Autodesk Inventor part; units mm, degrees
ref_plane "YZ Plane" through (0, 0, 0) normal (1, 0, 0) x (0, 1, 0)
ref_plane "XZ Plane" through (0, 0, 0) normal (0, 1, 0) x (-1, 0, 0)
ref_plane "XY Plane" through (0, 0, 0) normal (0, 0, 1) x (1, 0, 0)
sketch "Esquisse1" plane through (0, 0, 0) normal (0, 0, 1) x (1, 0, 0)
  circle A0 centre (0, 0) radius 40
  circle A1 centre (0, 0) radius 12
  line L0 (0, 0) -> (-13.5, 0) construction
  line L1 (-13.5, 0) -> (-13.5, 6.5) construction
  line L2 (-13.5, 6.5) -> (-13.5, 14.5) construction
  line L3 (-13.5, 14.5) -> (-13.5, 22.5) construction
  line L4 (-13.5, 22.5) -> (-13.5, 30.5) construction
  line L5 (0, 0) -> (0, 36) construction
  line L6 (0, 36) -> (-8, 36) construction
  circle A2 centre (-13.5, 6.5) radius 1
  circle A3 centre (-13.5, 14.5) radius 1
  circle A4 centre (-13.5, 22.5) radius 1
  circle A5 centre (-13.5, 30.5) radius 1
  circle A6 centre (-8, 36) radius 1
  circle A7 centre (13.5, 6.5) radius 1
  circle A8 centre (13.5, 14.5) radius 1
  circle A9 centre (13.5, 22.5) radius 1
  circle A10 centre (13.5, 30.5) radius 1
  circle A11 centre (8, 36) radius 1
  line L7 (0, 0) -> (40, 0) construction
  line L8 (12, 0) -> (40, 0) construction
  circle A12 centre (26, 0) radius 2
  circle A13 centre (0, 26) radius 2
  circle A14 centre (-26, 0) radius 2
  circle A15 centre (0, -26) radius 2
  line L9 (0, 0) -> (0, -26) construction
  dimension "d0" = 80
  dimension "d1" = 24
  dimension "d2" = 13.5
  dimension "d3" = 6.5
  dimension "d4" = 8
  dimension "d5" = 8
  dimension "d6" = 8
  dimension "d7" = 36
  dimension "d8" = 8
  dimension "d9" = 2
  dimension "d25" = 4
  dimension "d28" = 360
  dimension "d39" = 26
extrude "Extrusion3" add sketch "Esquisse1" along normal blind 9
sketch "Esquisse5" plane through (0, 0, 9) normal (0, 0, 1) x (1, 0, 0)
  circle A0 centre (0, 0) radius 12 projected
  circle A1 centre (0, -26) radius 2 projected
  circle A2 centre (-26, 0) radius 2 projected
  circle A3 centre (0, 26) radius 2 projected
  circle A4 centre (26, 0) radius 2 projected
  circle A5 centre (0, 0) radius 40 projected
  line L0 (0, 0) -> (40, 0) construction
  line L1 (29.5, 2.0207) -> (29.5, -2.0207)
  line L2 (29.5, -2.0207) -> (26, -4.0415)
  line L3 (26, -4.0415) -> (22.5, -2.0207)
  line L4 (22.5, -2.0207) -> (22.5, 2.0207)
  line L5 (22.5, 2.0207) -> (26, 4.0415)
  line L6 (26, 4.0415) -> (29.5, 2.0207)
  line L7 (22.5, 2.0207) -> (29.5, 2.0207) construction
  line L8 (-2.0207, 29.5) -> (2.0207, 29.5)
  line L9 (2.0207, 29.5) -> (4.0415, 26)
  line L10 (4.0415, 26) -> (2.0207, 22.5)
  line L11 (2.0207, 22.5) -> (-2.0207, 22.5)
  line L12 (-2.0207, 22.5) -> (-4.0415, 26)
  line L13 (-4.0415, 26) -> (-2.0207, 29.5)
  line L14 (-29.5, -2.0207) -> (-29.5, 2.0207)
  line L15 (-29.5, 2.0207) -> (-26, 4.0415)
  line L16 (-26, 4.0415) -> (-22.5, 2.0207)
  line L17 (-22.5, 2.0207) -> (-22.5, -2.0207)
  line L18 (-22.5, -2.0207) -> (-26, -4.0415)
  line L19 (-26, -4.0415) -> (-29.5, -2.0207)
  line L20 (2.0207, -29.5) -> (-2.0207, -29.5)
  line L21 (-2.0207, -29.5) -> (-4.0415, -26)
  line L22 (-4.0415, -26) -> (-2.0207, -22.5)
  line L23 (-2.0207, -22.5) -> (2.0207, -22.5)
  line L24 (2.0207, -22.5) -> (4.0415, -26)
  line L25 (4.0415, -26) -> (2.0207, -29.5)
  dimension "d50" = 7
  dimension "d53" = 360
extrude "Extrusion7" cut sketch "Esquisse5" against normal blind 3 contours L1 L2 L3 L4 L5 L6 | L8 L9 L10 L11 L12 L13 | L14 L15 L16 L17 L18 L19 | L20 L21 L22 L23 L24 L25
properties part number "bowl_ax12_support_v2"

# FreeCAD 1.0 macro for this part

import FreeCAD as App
import Part
import Sketcher

V = App.Vector
Q = App.Units.Quantity


def add_polygon(sketch, points):
    """Adds a closed chain of lines whose ends are joined by coincident constraints."""
    first, n = sketch.GeometryCount, len(points)
    for a, b in zip(points, points[1:] + points[:1]):
        sketch.addGeometry(Part.LineSegment(App.Vector(*a, 0), App.Vector(*b, 0)), False)
    for i in range(n):
        sketch.addConstraint(Sketcher.Constraint("Coincident", first + i, 2, first + (i + 1) % n, 1))

doc = App.newDocument("Part")
body = doc.addObject("PartDesign::Body", "Body")

# Sketch on XY plane
sketch1 = doc.addObject("Sketcher::SketchObject", "Sketch")
body.addObject(sketch1)
sketch1.AttachmentSupport = (doc.XY_Plane, [""])
sketch1.MapMode = "FlatFace"
sketch1.addGeometry([
    Part.Circle(V(0, 0, 0), V(0, 0, 1), 40),  # 0
    Part.Circle(V(0, -26, 0), V(0, 0, 1), 2),  # 1
    Part.Circle(V(-26, 0, 0), V(0, 0, 1), 2),  # 2
    Part.Circle(V(-13.5, 6.5, 0), V(0, 0, 1), 1),  # 3
    Part.Circle(V(-13.5, 14.5, 0), V(0, 0, 1), 1),  # 4
    Part.Circle(V(-13.5, 22.5, 0), V(0, 0, 1), 1),  # 5
    Part.Circle(V(-13.5, 30.5, 0), V(0, 0, 1), 1),  # 6
    Part.Circle(V(-8, 36, 0), V(0, 0, 1), 1),  # 7
    Part.Circle(V(0, 0, 0), V(0, 0, 1), 12),  # 8
    Part.Circle(V(13.5, 6.5, 0), V(0, 0, 1), 1),  # 9
    Part.Circle(V(13.5, 14.5, 0), V(0, 0, 1), 1),  # 10
    Part.Circle(V(26, 0, 0), V(0, 0, 1), 2),  # 11
    Part.Circle(V(0, 26, 0), V(0, 0, 1), 2),  # 12
    Part.Circle(V(13.5, 22.5, 0), V(0, 0, 1), 1),  # 13
    Part.Circle(V(8, 36, 0), V(0, 0, 1), 1),  # 14
    Part.Circle(V(13.5, 30.5, 0), V(0, 0, 1), 1),  # 15
], False)
sketch1.addConstraint([
    Sketcher.Constraint("Coincident", 0, 3, -1, 1),
    Sketcher.Constraint("Coincident", 8, 3, -1, 1),
    Sketcher.Constraint("Equal", 1, 2),
    Sketcher.Constraint("Equal", 3, 4),
    Sketcher.Constraint("Equal", 4, 5),
    Sketcher.Constraint("Equal", 5, 6),
    Sketcher.Constraint("Equal", 6, 7),
    Sketcher.Constraint("Equal", 7, 9),
    Sketcher.Constraint("Equal", 9, 10),
    Sketcher.Constraint("Equal", 2, 11),
    Sketcher.Constraint("Equal", 11, 12),
    Sketcher.Constraint("Equal", 10, 13),
    Sketcher.Constraint("Equal", 13, 14),
    Sketcher.Constraint("Equal", 14, 15),
    Sketcher.Constraint("Symmetric", 2, 3, 11, 3, -1, 1),
    Sketcher.Constraint("Symmetric", 1, 3, 12, 3, -1, 1),
    Sketcher.Constraint("Symmetric", 3, 3, 9, 3, -2),
    Sketcher.Constraint("Symmetric", 4, 3, 10, 3, -2),
    Sketcher.Constraint("Symmetric", 5, 3, 13, 3, -2),
    Sketcher.Constraint("Symmetric", 7, 3, 14, 3, -2),
    Sketcher.Constraint("Symmetric", 6, 3, 15, 3, -2),
    Sketcher.Constraint("PointOnObject", 1, 3, -2),
    Sketcher.Constraint("PointOnObject", 2, 3, -1),
    Sketcher.Constraint("Vertical", 3, 3, 4, 3),
    Sketcher.Constraint("Vertical", 4, 3, 5, 3),
    Sketcher.Constraint("Vertical", 5, 3, 6, 3),
    Sketcher.Constraint("Diameter", 0, Q("80 mm")),
    Sketcher.Constraint("Diameter", 1, Q("4 mm")),
    Sketcher.Constraint("Diameter", 3, Q("2 mm")),
    Sketcher.Constraint("Diameter", 8, Q("24 mm")),
    Sketcher.Constraint("DistanceY", 1, 3, -1, 1, Q("26 mm")),
    Sketcher.Constraint("DistanceX", 2, 3, -1, 1, Q("26 mm")),
    Sketcher.Constraint("DistanceX", 7, 3, -1, 1, Q("8 mm")),
    Sketcher.Constraint("DistanceY", -1, 1, 7, 3, Q("36 mm")),
    Sketcher.Constraint("DistanceY", 3, 3, 4, 3, Q("8 mm")),
    Sketcher.Constraint("DistanceY", 4, 3, 5, 3, Q("8 mm")),
    Sketcher.Constraint("DistanceY", 5, 3, 6, 3, Q("8 mm")),
    Sketcher.Constraint("DistanceX", 3, 3, -1, 1, Q("13.5 mm")),
    Sketcher.Constraint("DistanceY", -1, 1, 3, 3, Q("6.5 mm")),
])
pad1 = doc.addObject("PartDesign::Pad", "Pad")
body.addObject(pad1)
pad1.Profile = sketch1
pad1.Length = 9

# Sketch on XY plane
sketch2 = doc.addObject("Sketcher::SketchObject", "Sketch001")
body.addObject(sketch2)
sketch2.AttachmentSupport = (doc.XY_Plane, [""])
sketch2.MapMode = "FlatFace"
sketch2.AttachmentOffset = App.Placement(V(0, 0, 9), App.Rotation())
add_polygon(sketch2, [(29.5, -2), (29.5, 2), (26, 4), (22.5, 2), (22.5, -2), (26, -4)])  # lines 0-5
sketch2.addGeometry(Part.Circle(V(26, 0, 0), V(0, 0, 1), 2), False)  # 6
add_polygon(sketch2, [(2, 29.5), (-2, 29.5), (-4, 26), (-2, 22.5), (2, 22.5), (4, 26)])  # lines 7-12
sketch2.addGeometry(Part.Circle(V(0, 26, 0), V(0, 0, 1), 2), False)  # 13
add_polygon(sketch2, [(-29.5, 2), (-29.5, -2), (-26, -4), (-22.5, -2), (-22.5, 2), (-26, 4)])  # lines 14-19
sketch2.addGeometry(Part.Circle(V(-26, 0, 0), V(0, 0, 1), 2), False)  # 20
add_polygon(sketch2, [(-2, -29.5), (2, -29.5), (4, -26), (2, -22.5), (-2, -22.5), (-4, -26)])  # lines 21-26
sketch2.addGeometry(Part.Circle(V(0, -26, 0), V(0, 0, 1), 2), False)  # 27
sketch2.addConstraint([
    Sketcher.Constraint("Vertical", 0),
    Sketcher.Constraint("Vertical", 3),
    Sketcher.Constraint("Horizontal", 7),
    Sketcher.Constraint("Horizontal", 10),
    Sketcher.Constraint("Vertical", 14),
    Sketcher.Constraint("Vertical", 17),
    Sketcher.Constraint("Horizontal", 21),
    Sketcher.Constraint("Horizontal", 24),
    Sketcher.Constraint("Equal", 6, 13),
    Sketcher.Constraint("Equal", 13, 20),
    Sketcher.Constraint("Equal", 20, 27),
    Sketcher.Constraint("Symmetric", 6, 3, 20, 3, -1, 1),
    Sketcher.Constraint("Symmetric", 13, 3, 27, 3, -1, 1),
    Sketcher.Constraint("Symmetric", 0, 2, 14, 2, -1, 1),
    Sketcher.Constraint("Symmetric", 1, 2, 15, 2, -1, 1),
    Sketcher.Constraint("Symmetric", 2, 2, 16, 2, -1, 1),
    Sketcher.Constraint("Symmetric", 4, 2, 18, 2, -1, 1),
    Sketcher.Constraint("Symmetric", 7, 2, 21, 2, -1, 1),
    Sketcher.Constraint("Symmetric", 8, 2, 22, 2, -1, 1),
    Sketcher.Constraint("Symmetric", 9, 2, 23, 2, -1, 1),
    Sketcher.Constraint("Symmetric", 11, 2, 25, 2, -1, 1),
    Sketcher.Constraint("Symmetric", 8, 2, 11, 2, -2),
    Sketcher.Constraint("Symmetric", 4, 2, 15, 2, -2),
    Sketcher.Constraint("PointOnObject", 6, 3, -1),
    Sketcher.Constraint("PointOnObject", 13, 3, -2),
    Sketcher.Constraint("Parallel", 1, 4),
    Sketcher.Constraint("Parallel", 2, 5),
    Sketcher.Constraint("Perpendicular", 4, 8),
    Sketcher.Constraint("Perpendicular", 5, 9),
    Sketcher.Constraint("Parallel", 8, 11),
    Sketcher.Constraint("Parallel", 9, 12),
    Sketcher.Constraint("Parallel", 15, 18),
    Sketcher.Constraint("Parallel", 16, 19),
    Sketcher.Constraint("Parallel", 22, 25),
    Sketcher.Constraint("Parallel", 23, 26),
    Sketcher.Constraint("Horizontal", 0, 2, 2, 2),
    Sketcher.Constraint("Horizontal", 3, 2, 5, 2),
    Sketcher.Constraint("Horizontal", 13, 3, 8, 2),
    Sketcher.Constraint("Vertical", 6, 3, 1, 2),
    Sketcher.Constraint("Vertical", 7, 2, 9, 2),
    Sketcher.Constraint("Equal", 24, 0),
    Sketcher.Constraint("Equal", 5, 8),
    Sketcher.Constraint("Diameter", 6, Q("4 mm")),
    Sketcher.Constraint("DistanceX", 2, 2, 0, 2, Q("7 mm")),
    Sketcher.Constraint("Angle", 1, Q("149.999 deg")),
    Sketcher.Constraint("DistanceX", -1, 1, 6, 3, Q("26 mm")),
    Sketcher.Constraint("DistanceY", -1, 1, 13, 3, Q("26 mm")),
    Sketcher.Constraint("DistanceX", 7, 2, 7, 1, Q("4.0414 mm")),
])
pocket1 = doc.addObject("PartDesign::Pocket", "Pocket")
body.addObject(pocket1)
pocket1.Profile = sketch2
pocket1.Length = 3

doc.recompute()
